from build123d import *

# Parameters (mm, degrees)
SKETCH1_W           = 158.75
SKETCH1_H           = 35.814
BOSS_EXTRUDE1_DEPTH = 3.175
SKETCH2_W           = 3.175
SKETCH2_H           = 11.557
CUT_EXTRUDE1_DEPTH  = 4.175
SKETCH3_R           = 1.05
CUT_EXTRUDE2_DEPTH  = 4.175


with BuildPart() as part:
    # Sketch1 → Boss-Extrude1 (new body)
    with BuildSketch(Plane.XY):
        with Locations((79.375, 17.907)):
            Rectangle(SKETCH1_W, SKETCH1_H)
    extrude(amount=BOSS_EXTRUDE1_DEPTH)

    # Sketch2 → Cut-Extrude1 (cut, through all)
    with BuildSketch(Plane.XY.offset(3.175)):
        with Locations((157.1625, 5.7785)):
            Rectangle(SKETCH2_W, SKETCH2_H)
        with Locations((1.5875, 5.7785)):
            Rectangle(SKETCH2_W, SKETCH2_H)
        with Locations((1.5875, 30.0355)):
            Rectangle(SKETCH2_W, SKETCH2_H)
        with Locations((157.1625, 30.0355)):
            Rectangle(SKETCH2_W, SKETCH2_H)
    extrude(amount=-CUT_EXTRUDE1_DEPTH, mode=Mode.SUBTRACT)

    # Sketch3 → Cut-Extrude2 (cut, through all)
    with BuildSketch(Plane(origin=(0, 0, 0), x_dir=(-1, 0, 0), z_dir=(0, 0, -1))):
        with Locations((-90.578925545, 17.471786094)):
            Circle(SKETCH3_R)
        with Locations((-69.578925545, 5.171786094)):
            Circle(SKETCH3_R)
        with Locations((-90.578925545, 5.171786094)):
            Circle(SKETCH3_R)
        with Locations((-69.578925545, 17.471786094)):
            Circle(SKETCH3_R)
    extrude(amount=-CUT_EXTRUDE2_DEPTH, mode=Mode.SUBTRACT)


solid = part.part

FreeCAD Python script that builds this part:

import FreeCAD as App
import Part
import Sketcher
Q = App.Units.Quantity


def add_polygon(sketch, points):
    """Adds a closed chain of lines whose ends are joined by coincident constraints."""
    first, n = sketch.GeometryCount, len(points)
    for a, b in zip(points, points[1:] + points[:1]):
        sketch.addGeometry(Part.LineSegment(App.Vector(*a, 0), App.Vector(*b, 0)), False)
    for i in range(n):
        sketch.addConstraint(Sketcher.Constraint("Coincident", first + i, 2, first + (i + 1) % n, 1))

doc = App.newDocument("Part")
body = doc.addObject("PartDesign::Body", "Body")

# Sketch on XY plane
sketch1 = body.newObject("Sketcher::SketchObject", "Sketch")
sketch1.AttachmentSupport = (doc.getObject("XY_Plane"), [""])
sketch1.MapMode = "FlatFace"
add_polygon(sketch1, [(0, 35.814), (0, 0), (158.75, 0), (158.75, 35.814)])  # lines 0-3
sketch1.addConstraint([
    Sketcher.Constraint("Vertical", 0),
    Sketcher.Constraint("Horizontal", 1),
    Sketcher.Constraint("Vertical", 2),
    Sketcher.Constraint("Horizontal", 3),
    Sketcher.Constraint("Coincident", 0, 2, -1, 1),
    Sketcher.Constraint("DistanceX", 1, 1, 1, 2, Q("6.25 in")),
    Sketcher.Constraint("DistanceY", 0, 2, 0, 1, Q("1.41 in")),
])
pad1 = body.newObject("PartDesign::Pad", "Pad")
pad1.Profile = sketch1
pad1.Length = Q("0.125 in")

# Sketch on XY plane
sketch2 = body.newObject("Sketcher::SketchObject", "Sketch001")
sketch2.AttachmentSupport = (doc.getObject("XY_Plane"), [""])
sketch2.MapMode = "FlatFace"
sketch2.AttachmentOffset = App.Placement(App.Vector(0, 0, 0.125 * 25.4), App.Rotation())
add_polygon(sketch2, [(155.575, 11.557), (155.575, 0), (158.75, 0), (158.75, 11.557)])  # lines 0-3
add_polygon(sketch2, [(0, 11.557), (0, 0), (3.175, 0), (3.175, 11.557)])  # lines 4-7
add_polygon(sketch2, [(0, 35.814), (0, 24.257), (3.175, 24.257), (3.175, 35.814)])  # lines 8-11
add_polygon(sketch2, [(155.575, 35.814), (155.575, 24.257), (158.75, 24.257), (158.75, 35.814)])  # lines 12-15
sketch2.addConstraint([
    Sketcher.Constraint("Vertical", 0),
    Sketcher.Constraint("Horizontal", 1),
    Sketcher.Constraint("Vertical", 2),
    Sketcher.Constraint("Horizontal", 3),
    Sketcher.Constraint("Vertical", 4),
    Sketcher.Constraint("Horizontal", 5),
    Sketcher.Constraint("Vertical", 6),
    Sketcher.Constraint("Horizontal", 7),
    Sketcher.Constraint("Vertical", 8),
    Sketcher.Constraint("Horizontal", 9),
    Sketcher.Constraint("Vertical", 10),
    Sketcher.Constraint("Horizontal", 11),
    Sketcher.Constraint("Vertical", 12),
    Sketcher.Constraint("Horizontal", 13),
    Sketcher.Constraint("Vertical", 14),
    Sketcher.Constraint("Horizontal", 15),
    Sketcher.Constraint("Coincident", 4, 2, -1, 1),
    Sketcher.Constraint("PointOnObject", 0, 2, -1),
    Sketcher.Constraint("PointOnObject", 8, 2, -2),
    Sketcher.Constraint("Horizontal", 3, 2, 6, 2),
    Sketcher.Constraint("Horizontal", 9, 2, 12, 2),
    Sketcher.Constraint("Horizontal", 11, 2, 14, 2),
    Sketcher.Constraint("Vertical", 6, 2, 9, 2),
    Sketcher.Constraint("Vertical", 3, 2, 12, 2),
    Sketcher.Constraint("Vertical", 2, 2, 13, 2),
    Sketcher.Constraint("Equal", 3, 5),
    Sketcher.Constraint("Equal", 6, 8),
    Sketcher.Constraint("DistanceX", 5, 2, 0, 2, Q("6 in")),
    Sketcher.Constraint("DistanceY", 7, 2, 8, 2, Q("0.5 in")),
    Sketcher.Constraint("DistanceX", 1, 1, 1, 2, Q("0.125 in")),
    Sketcher.Constraint("DistanceY", 0, 2, 0, 1, Q("0.455 in")),
])
pocket1 = body.newObject("PartDesign::Pocket", "Pocket")
pocket1.Profile = sketch2
pocket1.Type = "ThroughAll"

# Sketch on XY plane
sketch3 = body.newObject("Sketcher::SketchObject", "Sketch002")
sketch3.AttachmentSupport = (doc.getObject("XY_Plane"), [""])
sketch3.MapMode = "FlatFace"
sketch3.addGeometry([
    Part.Circle(App.Vector(90.578926, 17.471786, 0), App.Vector(0, 0, 1), 1.05),
    Part.Circle(App.Vector(69.578926, 5.171786, 0), App.Vector(0, 0, 1), 1.05),
    Part.Circle(App.Vector(90.578926, 5.171786, 0), App.Vector(0, 0, 1), 1.05),
    Part.Circle(App.Vector(69.578926, 17.471786, 0), App.Vector(0, 0, 1), 1.05),
], False)
sketch3.addConstraint([
    Sketcher.Constraint("Equal", 0, 1),
    Sketcher.Constraint("Equal", 1, 2),
    Sketcher.Constraint("Equal", 2, 3),
    Sketcher.Constraint("Horizontal", 1, 3, 2, 3),
    Sketcher.Constraint("Horizontal", 0, 3, 3, 3),
    Sketcher.Constraint("Vertical", 0, 3, 2, 3),
    Sketcher.Constraint("Vertical", 1, 3, 3, 3),
    Sketcher.Constraint("Diameter", 0, Q("2.1 mm")),
    Sketcher.Constraint("DistanceX", 1, 3, 0, 3, Q("21 mm")),
    Sketcher.Constraint("DistanceY", 1, 3, 0, 3, Q("12.3 mm")),
    Sketcher.Constraint("DistanceX", -1, 1, 0, 3, Q("90.578926 mm")),
    Sketcher.Constraint("DistanceY", -1, 1, 0, 3, Q("17.471786 mm")),
])
pocket2 = body.newObject("PartDesign::Pocket", "Pocket001")
pocket2.Profile = sketch3
pocket2.Type = "ThroughAll"
pocket2.Reversed = True

doc.recompute()
